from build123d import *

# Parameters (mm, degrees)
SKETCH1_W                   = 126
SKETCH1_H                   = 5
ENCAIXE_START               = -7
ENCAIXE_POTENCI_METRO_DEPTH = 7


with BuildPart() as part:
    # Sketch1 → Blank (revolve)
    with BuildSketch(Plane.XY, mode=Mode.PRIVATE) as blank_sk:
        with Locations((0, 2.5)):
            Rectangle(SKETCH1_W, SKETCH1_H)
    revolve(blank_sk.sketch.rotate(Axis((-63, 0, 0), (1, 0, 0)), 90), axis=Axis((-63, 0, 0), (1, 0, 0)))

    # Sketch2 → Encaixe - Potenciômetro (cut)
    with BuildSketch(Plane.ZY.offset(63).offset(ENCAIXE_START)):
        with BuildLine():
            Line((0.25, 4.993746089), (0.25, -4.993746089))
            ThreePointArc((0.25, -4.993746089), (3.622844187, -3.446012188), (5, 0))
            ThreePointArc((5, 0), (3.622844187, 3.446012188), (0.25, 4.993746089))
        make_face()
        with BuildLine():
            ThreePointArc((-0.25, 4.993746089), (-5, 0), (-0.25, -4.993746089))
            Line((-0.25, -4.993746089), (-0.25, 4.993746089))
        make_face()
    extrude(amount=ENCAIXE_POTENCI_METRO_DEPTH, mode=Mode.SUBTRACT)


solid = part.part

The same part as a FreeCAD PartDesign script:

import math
import FreeCAD as App
import Part
import Sketcher

V = App.Vector

doc = App.newDocument("Part")
body = doc.addObject("PartDesign::Body", "Body")

sketch1 = body.newObject("Sketcher::SketchObject", "Sketch")
sketch1.AttachmentSupport = (doc.getObject("XY_Plane"), [""])
sketch1.MapMode = "FlatFace"
sketch1.addGeometry(Part.LineSegment(V(-63, 5, 0), V(-63, 0, 0)), False)
sketch1.addGeometry(Part.LineSegment(V(-63, 0, 0), V(63, 0, 0)), False)
sketch1.addGeometry(Part.LineSegment(V(63, 0, 0), V(63, 5, 0)), False)
sketch1.addGeometry(Part.LineSegment(V(63, 5, 0), V(-63, 5, 0)), False)
sketch1.addConstraint(Sketcher.Constraint("Coincident", 0, 2, 1, 1))
sketch1.addConstraint(Sketcher.Constraint("Coincident", 1, 2, 2, 1))
sketch1.addConstraint(Sketcher.Constraint("Coincident", 2, 2, 3, 1))
sketch1.addConstraint(Sketcher.Constraint("Coincident", 3, 2, 0, 1))
sketch1.addConstraint(Sketcher.Constraint("Vertical", 0))
sketch1.addConstraint(Sketcher.Constraint("Horizontal", 1))
sketch1.addConstraint(Sketcher.Constraint("Vertical", 2))
sketch1.addConstraint(Sketcher.Constraint("Horizontal", 3))
sketch1.addConstraint(Sketcher.Constraint("Symmetric", 0, 2, 1, 2, -1, 1))
sketch1.addConstraint(Sketcher.Constraint("DistanceX", 1, 1, 1, 2, 126.0))
sketch1.addConstraint(Sketcher.Constraint("DistanceY", 0, 2, 0, 1, 5.0))
revolution = body.newObject("PartDesign::Revolution", "Revolution")
revolution.Profile = sketch1
revolution.ReferenceAxis = (sketch1, ["H_Axis"])
revolution.Angle = 360

sketch2 = body.newObject("Sketcher::SketchObject", "Sketch001")
sketch2.AttachmentSupport = (doc.getObject("YZ_Plane"), [""])
sketch2.MapMode = "FlatFace"
sketch2.AttachmentOffset = App.Placement(V(0, 0, -56), App.Rotation())
sketch2.addGeometry(Part.LineSegment(V(5, 0.2, 0), V(-5, 0.2, 0)), False)
sketch2.addGeometry(Part.ArcOfCircle(Part.Circle(V(0, 0, 0), V(0, 0, 1), 5), math.radians(90), math.radians(177)), False)
sketch2.addGeometry(Part.ArcOfCircle(Part.Circle(V(0, 0, 0), V(0, 0, 1), 5), math.radians(3), math.radians(90)), False)
sketch2.addGeometry(Part.ArcOfCircle(Part.Circle(V(0, 0, 0), V(0, 0, 1), 5), math.radians(-177), math.radians(-3)), False)
sketch2.addGeometry(Part.LineSegment(V(-5, -0.2, 0), V(5, -0.2, 0)), False)
sketch2.addConstraint(Sketcher.Constraint("Coincident", 0, 2, 1, 2))
sketch2.addConstraint(Sketcher.Constraint("Tangent", 1, 1, 2, 2))
sketch2.addConstraint(Sketcher.Constraint("Coincident", 2, 1, 0, 1))
sketch2.addConstraint(Sketcher.Constraint("Coincident", 3, 1, 4, 1))
sketch2.addConstraint(Sketcher.Constraint("Coincident", 4, 2, 3, 2))
sketch2.addConstraint(Sketcher.Constraint("Horizontal", 0))
sketch2.addConstraint(Sketcher.Constraint("Horizontal", 4))
sketch2.addConstraint(Sketcher.Constraint("Coincident", 1, 3, -1, 1))
sketch2.addConstraint(Sketcher.Constraint("Coincident", 3, 3, -1, 1))
sketch2.addConstraint(Sketcher.Constraint("Equal", 1, 2))
sketch2.addConstraint(Sketcher.Constraint("Equal", 2, 3))
sketch2.addConstraint(Sketcher.Constraint("PointOnObject", 1, 1, -2))
sketch2.addConstraint(Sketcher.Constraint("Vertical", 0, 2, 3, 1))
sketch2.addConstraint(Sketcher.Constraint("Radius", 1, 5.0))
sketch2.addConstraint(Sketcher.Constraint("DistanceY", 3, 1, 0, 2, 0.5))
pocket1 = body.newObject("PartDesign::Pocket", "Pocket")
pocket1.Profile = sketch2
pocket1.Length = 7

doc.recompute()
